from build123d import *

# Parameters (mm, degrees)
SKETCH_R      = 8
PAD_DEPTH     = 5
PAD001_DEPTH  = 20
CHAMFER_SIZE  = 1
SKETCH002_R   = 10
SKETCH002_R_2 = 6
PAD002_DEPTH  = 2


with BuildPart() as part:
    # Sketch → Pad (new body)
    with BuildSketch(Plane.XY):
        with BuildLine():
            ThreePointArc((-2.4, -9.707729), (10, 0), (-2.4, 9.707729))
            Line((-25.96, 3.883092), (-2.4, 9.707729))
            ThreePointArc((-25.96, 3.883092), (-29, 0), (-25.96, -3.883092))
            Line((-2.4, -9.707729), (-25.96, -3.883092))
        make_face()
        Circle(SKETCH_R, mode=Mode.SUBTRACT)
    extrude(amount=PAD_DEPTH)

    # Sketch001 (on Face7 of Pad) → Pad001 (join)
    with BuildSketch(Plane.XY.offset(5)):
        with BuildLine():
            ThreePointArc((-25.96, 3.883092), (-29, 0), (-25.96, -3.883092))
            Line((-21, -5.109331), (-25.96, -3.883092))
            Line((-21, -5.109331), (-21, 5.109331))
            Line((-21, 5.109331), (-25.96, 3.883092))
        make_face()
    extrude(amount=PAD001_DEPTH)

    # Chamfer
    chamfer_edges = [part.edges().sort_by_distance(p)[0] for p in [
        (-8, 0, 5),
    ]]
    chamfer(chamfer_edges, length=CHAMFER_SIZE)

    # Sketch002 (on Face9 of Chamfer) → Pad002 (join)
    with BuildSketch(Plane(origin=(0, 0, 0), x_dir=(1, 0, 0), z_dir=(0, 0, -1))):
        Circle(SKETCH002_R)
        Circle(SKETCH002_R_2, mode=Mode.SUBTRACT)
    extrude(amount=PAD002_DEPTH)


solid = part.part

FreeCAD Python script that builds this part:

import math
import FreeCAD as App
import Part
import Sketcher

V = App.Vector
Q = App.Units.Quantity


def edges_at(feature, points):
    """Names of the edges that pass closest to the given points."""
    edges = feature.Shape.Edges
    near = lambda p: min(range(len(edges)), key=lambda i: edges[i].distToShape(Part.Vertex(*p))[0])
    return sorted({f"Edge{near(p) + 1}" for p in points})

doc = App.newDocument("Part")
body = doc.addObject("PartDesign::Body", "Body")

sketch1 = body.newObject("Sketcher::SketchObject", "Sketch")
sketch1.AttachmentSupport = (doc.getObject("XY_Plane"), [""])
sketch1.MapMode = "FlatFace"
sketch1.addGeometry([
    Part.ArcOfCircle(Part.Circle(V(0, 0, 0), V(0, 0, 1), 10), math.radians(-103.88654), math.radians(103.88654)),
    Part.LineSegment(V(-2.4, 9.707729, 0), V(-25.96, 3.883092, 0)),
    Part.ArcOfCircle(Part.Circle(V(-24.999999, 0, 0), V(0, 0, 1), 4.000001), math.radians(103.886547), math.radians(256.113453)),
    Part.LineSegment(V(-25.96, -3.883092, 0), V(-2.4, -9.707729, 0)),
    Part.Circle(V(0, 0, 0), V(0, 0, 1), 8),
], False)
sketch1.addConstraint([
    Sketcher.Constraint("Tangent", 0, 2, 1, 1),
    Sketcher.Constraint("Tangent", 1, 2, 2, 1),
    Sketcher.Constraint("Tangent", 2, 2, 3, 1),
    Sketcher.Constraint("Tangent", 3, 2, 0, 1),
    Sketcher.Constraint("Coincident", 0, 3, -1, 1),
    Sketcher.Constraint("Coincident", 4, 3, -1, 1),
    Sketcher.Constraint("PointOnObject", 2, 3, -1),
    Sketcher.Constraint("Diameter", 4, Q("16 mm")),
    Sketcher.Constraint("Radius", 0, Q("10 mm")),
    Sketcher.Constraint("Radius", 2, Q("4.000001 mm")),
    Sketcher.Constraint("DistanceX", 2, 3, -1, 1, Q("24.999999 mm")),
])
pad1 = body.newObject("PartDesign::Pad", "Pad")
pad1.Profile = sketch1
pad1.Length = 5

sketch2 = body.newObject("Sketcher::SketchObject", "Sketch001")
sketch2.AttachmentSupport = (doc.getObject("XY_Plane"), [""])
sketch2.MapMode = "FlatFace"
sketch2.AttachmentOffset = App.Placement(V(0, 0, 5), App.Rotation())
sketch2.addGeometry([
    Part.ArcOfCircle(Part.Circle(V(-24.999999, 0, 0), V(0, 0, 1), 4.000001), math.radians(103.886547), math.radians(256.113453)),
    Part.LineSegment(V(-25.96, -3.883092, 0), V(-21, -5.109331, 0)),
    Part.LineSegment(V(-21, -5.109331, 0), V(-21, 5.109331, 0)),
    Part.LineSegment(V(-21, 5.109331, 0), V(-25.96, 3.883092, 0)),
], False)
sketch2.addConstraint([
    Sketcher.Constraint("Tangent", 0, 2, 1, 1),
    Sketcher.Constraint("Coincident", 1, 2, 2, 1),
    Sketcher.Constraint("Coincident", 2, 2, 3, 1),
    Sketcher.Constraint("Tangent", 3, 2, 0, 1),
    Sketcher.Constraint("Vertical", 2),
    Sketcher.Constraint("Symmetric", 0, 2, 3, 2, -1),
    Sketcher.Constraint("Radius", 0, Q("4.000001 mm")),
    Sketcher.Constraint("DistanceX", 0, 3, -1, 1, Q("24.999999 mm")),
    Sketcher.Constraint("DistanceX", 1, 2, -1, 1, Q("21 mm")),
    Sketcher.Constraint("DistanceX", 0, 2, -1, 1, Q("25.96 mm")),
])
pad2 = body.newObject("PartDesign::Pad", "Pad001")
pad2.Profile = sketch2
pad2.Length = 20
doc.recompute()

chamfer = body.newObject("PartDesign::Chamfer", "Chamfer")
chamfer.Base = (pad2, edges_at(pad2, [(-8, 0, 5)]))
chamfer.Size = 1

sketch3 = body.newObject("Sketcher::SketchObject", "Sketch002")
sketch3.AttachmentSupport = (doc.getObject("XY_Plane"), [""])
sketch3.MapMode = "FlatFace"
sketch3.addGeometry([
    Part.Circle(V(0, 0, 0), V(0, 0, 1), 10),
    Part.Circle(V(0, 0, 0), V(0, 0, 1), 6),
], False)
sketch3.addConstraint([
    Sketcher.Constraint("Coincident", 0, 3, -1, 1),
    Sketcher.Constraint("Coincident", 1, 3, -1, 1),
    Sketcher.Constraint("Diameter", 0, Q("20 mm")),
    Sketcher.Constraint("Diameter", 1, Q("12 mm")),
])
pad3 = body.newObject("PartDesign::Pad", "Pad002")
pad3.Profile = sketch3
pad3.Length = 2
pad3.Reversed = True

doc.recompute()
